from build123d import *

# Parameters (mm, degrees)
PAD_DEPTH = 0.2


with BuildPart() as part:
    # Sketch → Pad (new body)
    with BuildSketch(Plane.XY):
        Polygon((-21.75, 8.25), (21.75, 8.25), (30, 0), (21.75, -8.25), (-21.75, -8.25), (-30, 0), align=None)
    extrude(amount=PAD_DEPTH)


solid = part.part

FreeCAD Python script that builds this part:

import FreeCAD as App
import Part
import Sketcher


def add_polygon(sketch, points):
    """Adds a closed chain of lines whose ends are joined by coincident constraints."""
    first, n = sketch.GeometryCount, len(points)
    for a, b in zip(points, points[1:] + points[:1]):
        sketch.addGeometry(Part.LineSegment(App.Vector(*a, 0), App.Vector(*b, 0)), False)
    for i in range(n):
        sketch.addConstraint(Sketcher.Constraint("Coincident", first + i, 2, first + (i + 1) % n, 1))

doc = App.newDocument("Part")
body = doc.addObject("PartDesign::Body", "Body")

# Sketch on XY plane
sketch1 = body.newObject("Sketcher::SketchObject", "Sketch")
sketch1.AttachmentSupport = (doc.getObject("XY_Plane"), [""])
sketch1.MapMode = "FlatFace"
add_polygon(sketch1, [(22, 8), (-22, 8), (-30, 0), (-22, -8), (22, -8), (30, 0)])  # lines 0-5
sketch1.addConstraint([
    Sketcher.Constraint("Horizontal", 0),
    Sketcher.Constraint("Horizontal", 3),
    Sketcher.Constraint("Symmetric", 0, 2, 3, 2, -1, 1),
    Sketcher.Constraint("Symmetric", 1, 2, 4, 2, -1, 1),
    Sketcher.Constraint("PointOnObject", 1, 2, -1),
    Sketcher.Constraint("Perpendicular", 1, 2),
    Sketcher.Constraint("Perpendicular", 4, 5),
    Sketcher.Constraint("Vertical", 0, 2, 2, 2),
    Sketcher.Constraint("DistanceX", 0, 2, 0, 1, 43.5),
    Sketcher.Constraint("DistanceX", 1, 2, -1, 1, 30.0),
])
pad1 = body.newObject("PartDesign::Pad", "Pad")
pad1.Profile = sketch1
pad1.Length = 0.2

doc.recompute()
